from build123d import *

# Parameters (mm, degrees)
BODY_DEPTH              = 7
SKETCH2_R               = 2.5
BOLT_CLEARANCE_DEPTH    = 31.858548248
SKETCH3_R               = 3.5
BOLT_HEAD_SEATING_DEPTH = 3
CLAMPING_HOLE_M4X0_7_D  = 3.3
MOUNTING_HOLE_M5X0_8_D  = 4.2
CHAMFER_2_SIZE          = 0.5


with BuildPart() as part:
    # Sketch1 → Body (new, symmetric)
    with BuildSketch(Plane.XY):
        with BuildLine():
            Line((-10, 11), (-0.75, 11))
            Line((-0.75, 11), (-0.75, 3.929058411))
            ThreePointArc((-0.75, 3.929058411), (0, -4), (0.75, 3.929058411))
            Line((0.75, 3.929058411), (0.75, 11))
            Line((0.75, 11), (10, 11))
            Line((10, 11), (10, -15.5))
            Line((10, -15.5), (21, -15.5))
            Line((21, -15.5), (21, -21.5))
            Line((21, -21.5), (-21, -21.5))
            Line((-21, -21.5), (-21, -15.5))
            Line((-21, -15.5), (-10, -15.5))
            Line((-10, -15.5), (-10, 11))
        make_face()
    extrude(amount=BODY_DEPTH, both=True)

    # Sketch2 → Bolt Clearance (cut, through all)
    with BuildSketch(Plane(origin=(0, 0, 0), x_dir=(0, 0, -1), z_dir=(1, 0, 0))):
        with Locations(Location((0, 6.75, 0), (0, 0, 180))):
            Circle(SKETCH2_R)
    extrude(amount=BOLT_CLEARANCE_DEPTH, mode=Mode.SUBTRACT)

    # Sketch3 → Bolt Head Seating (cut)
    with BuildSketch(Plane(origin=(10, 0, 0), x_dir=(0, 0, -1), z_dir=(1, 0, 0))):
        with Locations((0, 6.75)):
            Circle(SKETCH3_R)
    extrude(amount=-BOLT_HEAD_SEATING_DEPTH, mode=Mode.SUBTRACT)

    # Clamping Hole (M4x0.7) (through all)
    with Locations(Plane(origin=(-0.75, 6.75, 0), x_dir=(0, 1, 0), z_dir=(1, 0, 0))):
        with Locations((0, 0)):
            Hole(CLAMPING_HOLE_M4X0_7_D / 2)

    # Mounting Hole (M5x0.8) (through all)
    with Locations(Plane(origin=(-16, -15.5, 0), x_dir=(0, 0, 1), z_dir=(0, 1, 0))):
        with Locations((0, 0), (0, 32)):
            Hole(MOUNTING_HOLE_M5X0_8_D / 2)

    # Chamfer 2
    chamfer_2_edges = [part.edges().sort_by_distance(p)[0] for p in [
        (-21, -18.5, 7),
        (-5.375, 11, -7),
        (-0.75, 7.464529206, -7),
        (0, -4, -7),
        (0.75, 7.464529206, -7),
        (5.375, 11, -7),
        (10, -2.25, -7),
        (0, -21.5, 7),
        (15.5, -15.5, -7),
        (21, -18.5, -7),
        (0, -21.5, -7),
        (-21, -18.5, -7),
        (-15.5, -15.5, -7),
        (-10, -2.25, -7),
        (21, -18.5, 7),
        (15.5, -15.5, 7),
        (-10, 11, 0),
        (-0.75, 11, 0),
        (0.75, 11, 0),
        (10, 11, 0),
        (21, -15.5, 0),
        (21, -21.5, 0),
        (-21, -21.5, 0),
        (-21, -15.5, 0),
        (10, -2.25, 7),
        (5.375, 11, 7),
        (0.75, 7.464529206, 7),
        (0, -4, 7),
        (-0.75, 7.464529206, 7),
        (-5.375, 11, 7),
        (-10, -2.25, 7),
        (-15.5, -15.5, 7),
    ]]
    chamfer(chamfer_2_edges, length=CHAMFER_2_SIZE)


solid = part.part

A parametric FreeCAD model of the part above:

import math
import FreeCAD as App
import Part
import Sketcher


def edges_at(feature, points):
    """Names of the edges that pass closest to the given points."""
    edges = feature.Shape.Edges
    near = lambda p: min(range(len(edges)), key=lambda i: edges[i].distToShape(Part.Vertex(*p))[0])
    return sorted({f"Edge{near(p) + 1}" for p in points})

doc = App.newDocument("Part")
params = doc.addObject("Spreadsheet::Sheet", "Params")
for row, (alias, value) in enumerate([
    ("sketch1_radius", "4 mm"),
    ("sketch1_width", "11 mm"),
    ("sketch1_width2", "42 mm"),
    ("sketch1_height", "6 mm"),
    ("sketch1_height2", "26.5 mm"),
    ("pad1_length", "14 mm"),
    ("sketch2_diameter", "5 mm"),
    ("sketch3_diameter", "7 mm"),
    ("pocket2_length", "3 mm"),
    ("sketch4_diameter", "3.3 mm"),
    ("hole_diameter", "3.3 mm"),
    ("sketch5_diameter", "4.2 mm"),
    ("hole2_diameter", "4.2 mm"),
    ("chamfer_size", "0.5 mm"),
], start=1):
    params.set(f"A{row}", alias)
    params.set(f"B{row}", "=" + value)
    params.setAlias(f"B{row}", alias)

body = doc.addObject("PartDesign::Body", "Body")

sketch1 = body.newObject("Sketcher::SketchObject", "Sketch")
sketch1.AttachmentSupport = (doc.getObject("XY_Plane"), [""])
sketch1.MapMode = "FlatFace"
sketch1.addGeometry(Part.LineSegment(App.Vector(-0.75, 11, 0), App.Vector(-10, 11, 0)), False)
sketch1.addGeometry(Part.LineSegment(App.Vector(-10, 11, 0), App.Vector(-10, -15.5, 0)), False)
sketch1.addGeometry(Part.LineSegment(App.Vector(-10, -15.5, 0), App.Vector(-21, -15.5, 0)), False)
sketch1.addGeometry(Part.LineSegment(App.Vector(-21, -15.5, 0), App.Vector(-21, -21.5, 0)), False)
sketch1.addGeometry(Part.LineSegment(App.Vector(-21, -21.5, 0), App.Vector(21, -21.5, 0)), False)
sketch1.addGeometry(Part.LineSegment(App.Vector(21, -21.5, 0), App.Vector(21, -15.5, 0)), False)
sketch1.addGeometry(Part.LineSegment(App.Vector(21, -15.5, 0), App.Vector(10, -15.5, 0)), False)
sketch1.addGeometry(Part.LineSegment(App.Vector(10, -15.5, 0), App.Vector(10, 11, 0)), False)
sketch1.addGeometry(Part.LineSegment(App.Vector(10, 11, 0), App.Vector(0.75, 11, 0)), False)
sketch1.addGeometry(Part.LineSegment(App.Vector(0.75, 11, 0), App.Vector(0.75, 3.929058, 0)), False)
sketch1.addGeometry(Part.ArcOfCircle(Part.Circle(App.Vector(0, 0, 0), App.Vector(0, 0, 1), 4), math.radians(100.806923), math.radians(439.193077)), False)
sketch1.addGeometry(Part.LineSegment(App.Vector(-0.75, 3.929058, 0), App.Vector(-0.75, 11, 0)), False)
sketch1.addConstraint(Sketcher.Constraint("Coincident", 0, 2, 1, 1))
sketch1.addConstraint(Sketcher.Constraint("Coincident", 1, 2, 2, 1))
sketch1.addConstraint(Sketcher.Constraint("Coincident", 2, 2, 3, 1))
sketch1.addConstraint(Sketcher.Constraint("Coincident", 3, 2, 4, 1))
sketch1.addConstraint(Sketcher.Constraint("Coincident", 4, 2, 5, 1))
sketch1.addConstraint(Sketcher.Constraint("Coincident", 5, 2, 6, 1))
sketch1.addConstraint(Sketcher.Constraint("Coincident", 6, 2, 7, 1))
sketch1.addConstraint(Sketcher.Constraint("Coincident", 7, 2, 8, 1))
sketch1.addConstraint(Sketcher.Constraint("Coincident", 8, 2, 9, 1))
sketch1.addConstraint(Sketcher.Constraint("Coincident", 9, 2, 10, 2))
sketch1.addConstraint(Sketcher.Constraint("Coincident", 10, 1, 11, 1))
sketch1.addConstraint(Sketcher.Constraint("Coincident", 11, 2, 0, 1))
sketch1.addConstraint(Sketcher.Constraint("Horizontal", 0))
sketch1.addConstraint(Sketcher.Constraint("Vertical", 1))
sketch1.addConstraint(Sketcher.Constraint("Horizontal", 2))
sketch1.addConstraint(Sketcher.Constraint("Vertical", 3))
sketch1.addConstraint(Sketcher.Constraint("Horizontal", 4))
sketch1.addConstraint(Sketcher.Constraint("Vertical", 5))
sketch1.addConstraint(Sketcher.Constraint("Horizontal", 6))
sketch1.addConstraint(Sketcher.Constraint("Vertical", 7))
sketch1.addConstraint(Sketcher.Constraint("Horizontal", 8))
sketch1.addConstraint(Sketcher.Constraint("Vertical", 9))
sketch1.addConstraint(Sketcher.Constraint("Vertical", 11))
sketch1.addConstraint(Sketcher.Constraint("Coincident", 10, 3, -1, 1))
sketch1.addConstraint(Sketcher.Constraint("Symmetric", 2, 2, 5, 2, -2))
sketch1.addConstraint(Sketcher.Constraint("Symmetric", 0, 2, 7, 2, -2))
sketch1.addConstraint(Sketcher.Constraint("Horizontal", 9, 2, 10, 1))
sketch1.addConstraint(Sketcher.Constraint("Radius", 10, 4.0))
sketch1.addConstraint(Sketcher.Constraint("DistanceX", 2, 2, 2, 1, 11.0))
sketch1.addConstraint(Sketcher.Constraint("DistanceX", 4, 1, 4, 2, 42.0))
sketch1.addConstraint(Sketcher.Constraint("DistanceY", 3, 2, 3, 1, 6.0))
sketch1.addConstraint(Sketcher.Constraint("DistanceY", 1, 2, 1, 1, 26.5))
sketch1.addConstraint(Sketcher.Constraint("DistanceY", -1, 1, 0, 2, 11.0))
sketch1.addConstraint(Sketcher.Constraint("DistanceX", 0, 2, 0, 1, 9.25))
sketch1.setExpression("Constraints[27]", "Params.sketch1_radius")
sketch1.setExpression("Constraints[28]", "Params.sketch1_width")
sketch1.setExpression("Constraints[29]", "Params.sketch1_width2")
sketch1.setExpression("Constraints[30]", "Params.sketch1_height")
sketch1.setExpression("Constraints[31]", "Params.sketch1_height2")
pad1 = body.newObject("PartDesign::Pad", "Pad")
pad1.Profile = sketch1
pad1.setExpression("Length", "Params.pad1_length")
pad1.Midplane = True

sketch2 = body.newObject("Sketcher::SketchObject", "Sketch001")
sketch2.AttachmentSupport = (doc.getObject("YZ_Plane"), [""])
sketch2.MapMode = "FlatFace"
sketch2.addGeometry(Part.Circle(App.Vector(6.75, 0, 0), App.Vector(0, 0, 1), 2.5), False)
sketch2.addConstraint(Sketcher.Constraint("PointOnObject", 0, 3, -1))
sketch2.addConstraint(Sketcher.Constraint("Diameter", 0, 5.0))
sketch2.addConstraint(Sketcher.Constraint("DistanceX", -1, 1, 0, 3, 6.75))
sketch2.setExpression("Constraints[1]", "Params.sketch2_diameter")
pocket1 = body.newObject("PartDesign::Pocket", "Pocket")
pocket1.Profile = sketch2
pocket1.Type = "ThroughAll"
pocket1.Reversed = True

sketch3 = body.newObject("Sketcher::SketchObject", "Sketch002")
sketch3.AttachmentSupport = (doc.getObject("YZ_Plane"), [""])
sketch3.MapMode = "FlatFace"
sketch3.AttachmentOffset = App.Placement(App.Vector(0, 0, 10), App.Rotation())
sketch3.addGeometry(Part.Circle(App.Vector(6.75, 0, 0), App.Vector(0, 0, 1), 3.5), False)
sketch3.addConstraint(Sketcher.Constraint("PointOnObject", 0, 3, -1))
sketch3.addConstraint(Sketcher.Constraint("Diameter", 0, 7.0))
sketch3.addConstraint(Sketcher.Constraint("DistanceX", -1, 1, 0, 3, 6.75))
sketch3.setExpression("Constraints[1]", "Params.sketch3_diameter")
pocket2 = body.newObject("PartDesign::Pocket", "Pocket001")
pocket2.Profile = sketch3
pocket2.setExpression("Length", "Params.pocket2_length")

sketch4 = body.newObject("Sketcher::SketchObject", "Sketch003")
sketch4.AttachmentSupport = (doc.getObject("YZ_Plane"), [""])
sketch4.MapMode = "FlatFace"
sketch4.AttachmentOffset = App.Placement(App.Vector(0, 0, -0.75), App.Rotation())
sketch4.addGeometry(Part.Circle(App.Vector(6.75, 0, 0), App.Vector(0, 0, 1), 1.65), False)
sketch4.addConstraint(Sketcher.Constraint("PointOnObject", 0, 3, -1))
sketch4.addConstraint(Sketcher.Constraint("Diameter", 0, 3.3))
sketch4.addConstraint(Sketcher.Constraint("DistanceX", -1, 1, 0, 3, 6.75))
sketch4.setExpression("Constraints[1]", "Params.sketch4_diameter")
doc.recompute()
hole = body.newObject("PartDesign::Hole", "Hole")
hole.Profile = sketch4
hole.ThreadType = "None"
hole.setExpression("Diameter", "Params.hole_diameter")
hole.DepthType = "ThroughAll"

sketch5 = body.newObject("Sketcher::SketchObject", "Sketch004")
sketch5.AttachmentSupport = (doc.getObject("XZ_Plane"), [""])
sketch5.MapMode = "FlatFace"
sketch5.AttachmentOffset = App.Placement(App.Vector(0, 0, 15.5), App.Rotation())
sketch5.addGeometry(Part.Circle(App.Vector(-16, 0, 0), App.Vector(0, 0, 1), 2.1), False)
sketch5.addGeometry(Part.Circle(App.Vector(16, 0, 0), App.Vector(0, 0, 1), 2.1), False)
sketch5.addConstraint(Sketcher.Constraint("Equal", 0, 1))
sketch5.addConstraint(Sketcher.Constraint("Symmetric", 0, 3, 1, 3, -1, 1))
sketch5.addConstraint(Sketcher.Constraint("PointOnObject", 0, 3, -1))
sketch5.addConstraint(Sketcher.Constraint("Diameter", 0, 4.2))
sketch5.addConstraint(Sketcher.Constraint("DistanceX", 0, 3, -1, 1, 16.0))
sketch5.setExpression("Constraints[3]", "Params.sketch5_diameter")
doc.recompute()
hole2 = body.newObject("PartDesign::Hole", "Hole001")
hole2.Profile = sketch5
hole2.ThreadType = "None"
hole2.setExpression("Diameter", "Params.hole2_diameter")
hole2.DepthType = "ThroughAll"
hole2.Reversed = True
doc.recompute()

chamfer = body.newObject("PartDesign::Chamfer", "Chamfer")
chamfer.Base = (hole2, edges_at(hole2, [
    (-21, -18.5, 7),
    (-5.375, 11, -7),
    (-0.75, 7.465, -7),
    (0, -4, -7),
    (0.75, 7.465, -7),
    (5.375, 11, -7),
    (10, -2.25, -7),
    (0, -21.5, 7),
    (15.5, -15.5, -7),
    (21, -18.5, -7),
    (0, -21.5, -7),
    (-21, -18.5, -7),
    (-15.5, -15.5, -7),
    (-10, -2.25, -7),
    (21, -18.5, 7),
    (15.5, -15.5, 7),
    (-10, 11, 0),
    (-0.75, 11, 0),
    (0.75, 11, 0),
    (10, 11, 0),
    (21, -15.5, 0),
    (21, -21.5, 0),
    (-21, -21.5, 0),
    (-21, -15.5, 0),
    (10, -2.25, 7),
    (5.375, 11, 7),
    (0.75, 7.465, 7),
    (0, -4, 7),
    (-0.75, 7.465, 7),
    (-5.375, 11, 7),
    (-10, -2.25, 7),
    (-15.5, -15.5, 7),
]))
chamfer.setExpression("Size", "Params.chamfer_size")

doc.recompute()
